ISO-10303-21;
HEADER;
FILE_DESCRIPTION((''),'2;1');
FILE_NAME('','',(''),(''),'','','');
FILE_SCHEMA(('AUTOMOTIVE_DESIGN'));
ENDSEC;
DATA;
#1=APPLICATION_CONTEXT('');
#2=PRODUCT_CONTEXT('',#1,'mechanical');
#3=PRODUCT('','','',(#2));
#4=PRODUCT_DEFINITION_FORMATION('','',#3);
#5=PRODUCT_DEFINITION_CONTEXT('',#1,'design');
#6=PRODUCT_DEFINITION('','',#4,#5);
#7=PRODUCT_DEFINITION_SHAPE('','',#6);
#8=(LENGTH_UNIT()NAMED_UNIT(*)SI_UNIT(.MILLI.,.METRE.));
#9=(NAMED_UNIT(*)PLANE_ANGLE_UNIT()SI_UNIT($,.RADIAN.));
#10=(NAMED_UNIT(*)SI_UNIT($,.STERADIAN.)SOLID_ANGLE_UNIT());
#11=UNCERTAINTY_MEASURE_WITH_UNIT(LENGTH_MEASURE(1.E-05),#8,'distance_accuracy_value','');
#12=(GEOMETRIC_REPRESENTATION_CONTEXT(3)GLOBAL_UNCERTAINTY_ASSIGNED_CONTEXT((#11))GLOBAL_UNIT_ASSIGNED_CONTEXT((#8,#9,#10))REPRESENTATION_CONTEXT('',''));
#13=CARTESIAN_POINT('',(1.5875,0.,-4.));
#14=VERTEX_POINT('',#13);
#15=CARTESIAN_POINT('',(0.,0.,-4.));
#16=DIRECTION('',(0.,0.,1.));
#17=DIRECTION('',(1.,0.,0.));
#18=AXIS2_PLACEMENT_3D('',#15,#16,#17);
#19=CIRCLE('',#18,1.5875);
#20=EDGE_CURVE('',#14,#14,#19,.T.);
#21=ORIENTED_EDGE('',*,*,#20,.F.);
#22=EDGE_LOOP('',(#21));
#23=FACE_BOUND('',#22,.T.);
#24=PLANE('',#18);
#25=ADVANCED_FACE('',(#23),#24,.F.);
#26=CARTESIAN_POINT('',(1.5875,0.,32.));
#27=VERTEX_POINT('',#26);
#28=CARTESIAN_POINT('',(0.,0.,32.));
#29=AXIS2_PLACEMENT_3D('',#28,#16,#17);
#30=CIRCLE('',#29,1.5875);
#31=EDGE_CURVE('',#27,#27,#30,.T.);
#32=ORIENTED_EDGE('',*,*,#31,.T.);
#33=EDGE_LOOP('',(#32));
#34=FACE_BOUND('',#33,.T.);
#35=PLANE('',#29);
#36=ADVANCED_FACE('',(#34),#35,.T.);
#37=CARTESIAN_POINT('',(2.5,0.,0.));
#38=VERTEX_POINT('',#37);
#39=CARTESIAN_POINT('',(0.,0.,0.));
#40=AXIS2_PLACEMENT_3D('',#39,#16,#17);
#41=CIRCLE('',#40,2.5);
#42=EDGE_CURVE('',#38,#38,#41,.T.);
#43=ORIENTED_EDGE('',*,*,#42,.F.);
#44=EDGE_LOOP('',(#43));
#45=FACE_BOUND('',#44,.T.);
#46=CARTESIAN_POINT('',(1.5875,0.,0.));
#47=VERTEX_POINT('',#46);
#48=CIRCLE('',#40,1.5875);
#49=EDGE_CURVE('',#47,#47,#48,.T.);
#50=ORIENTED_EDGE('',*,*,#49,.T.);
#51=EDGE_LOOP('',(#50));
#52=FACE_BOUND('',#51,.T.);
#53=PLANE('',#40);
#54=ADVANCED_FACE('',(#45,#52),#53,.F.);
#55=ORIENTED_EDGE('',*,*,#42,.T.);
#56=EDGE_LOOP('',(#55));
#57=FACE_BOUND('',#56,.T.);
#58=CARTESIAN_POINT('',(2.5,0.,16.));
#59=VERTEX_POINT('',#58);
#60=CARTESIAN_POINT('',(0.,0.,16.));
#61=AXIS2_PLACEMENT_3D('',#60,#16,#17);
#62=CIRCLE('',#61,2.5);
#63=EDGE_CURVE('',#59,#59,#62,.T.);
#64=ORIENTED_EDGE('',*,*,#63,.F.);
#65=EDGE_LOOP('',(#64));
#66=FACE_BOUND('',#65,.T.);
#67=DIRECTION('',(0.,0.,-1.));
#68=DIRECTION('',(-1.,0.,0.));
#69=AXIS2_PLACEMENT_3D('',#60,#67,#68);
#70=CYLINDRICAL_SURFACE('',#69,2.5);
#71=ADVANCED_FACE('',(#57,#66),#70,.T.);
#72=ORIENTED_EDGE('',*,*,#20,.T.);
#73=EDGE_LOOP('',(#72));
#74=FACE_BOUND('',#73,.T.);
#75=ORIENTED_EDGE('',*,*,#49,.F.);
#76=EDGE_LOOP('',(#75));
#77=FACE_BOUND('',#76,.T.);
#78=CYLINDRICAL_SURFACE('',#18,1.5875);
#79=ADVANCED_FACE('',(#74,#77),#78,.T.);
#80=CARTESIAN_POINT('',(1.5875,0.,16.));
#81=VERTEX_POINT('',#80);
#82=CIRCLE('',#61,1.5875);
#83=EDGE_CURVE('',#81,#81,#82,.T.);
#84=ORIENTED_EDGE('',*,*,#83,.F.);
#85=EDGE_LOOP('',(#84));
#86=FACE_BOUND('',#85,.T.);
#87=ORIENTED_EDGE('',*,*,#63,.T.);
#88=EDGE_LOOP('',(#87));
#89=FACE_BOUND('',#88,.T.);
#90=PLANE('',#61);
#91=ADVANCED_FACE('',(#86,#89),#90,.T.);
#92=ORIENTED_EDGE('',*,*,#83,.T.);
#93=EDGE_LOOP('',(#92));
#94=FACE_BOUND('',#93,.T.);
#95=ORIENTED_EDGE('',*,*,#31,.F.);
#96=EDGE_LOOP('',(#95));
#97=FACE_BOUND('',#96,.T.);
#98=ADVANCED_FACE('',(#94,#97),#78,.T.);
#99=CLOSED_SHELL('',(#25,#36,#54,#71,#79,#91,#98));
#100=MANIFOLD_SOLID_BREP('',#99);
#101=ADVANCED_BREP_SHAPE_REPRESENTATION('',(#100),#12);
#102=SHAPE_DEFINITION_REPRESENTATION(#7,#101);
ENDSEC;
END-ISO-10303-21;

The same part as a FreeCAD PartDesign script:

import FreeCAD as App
import Part
import Sketcher
from FreeCAD import Vector

doc = App.newDocument("Part")
body = doc.addObject("PartDesign::Body", "Body")

# Sketch on XY plane
sketch1 = doc.addObject("Sketcher::SketchObject", "Sketch")
body.addObject(sketch1)
sketch1.AttachmentSupport = (doc.XY_Plane, [""])
sketch1.MapMode = "FlatFace"
sketch1.addGeometry(Part.Circle(Vector(0, 0, 0), Vector(0, 0, 1), 2.5), False)
sketch1.addConstraint(Sketcher.Constraint("Coincident", 0, 3, -1, 1))
sketch1.addConstraint(Sketcher.Constraint("Diameter", 0, 5.0))
pad1 = doc.addObject("PartDesign::Pad", "Pad")
body.addObject(pad1)
pad1.Profile = sketch1
pad1.Length = 16

# Sketch on XY plane
sketch2 = doc.addObject("Sketcher::SketchObject", "Sketch001")
body.addObject(sketch2)
sketch2.AttachmentSupport = (doc.XY_Plane, [""])
sketch2.MapMode = "FlatFace"
sketch2.AttachmentOffset = App.Placement(Vector(0, 0, 16), App.Rotation())
sketch2.addGeometry(Part.Circle(Vector(0, 0, 0), Vector(0, 0, 1), 1.6), False)
sketch2.addConstraint(Sketcher.Constraint("Coincident", 0, 3, -1, 1))
sketch2.addConstraint(Sketcher.Constraint("Diameter", 0, 3.175))
pad2 = doc.addObject("PartDesign::Pad", "Pad001")
body.addObject(pad2)
pad2.Profile = sketch2
pad2.Type = "TwoLengths"
pad2.Length = 16
pad2.Length2 = 20

doc.recompute()
